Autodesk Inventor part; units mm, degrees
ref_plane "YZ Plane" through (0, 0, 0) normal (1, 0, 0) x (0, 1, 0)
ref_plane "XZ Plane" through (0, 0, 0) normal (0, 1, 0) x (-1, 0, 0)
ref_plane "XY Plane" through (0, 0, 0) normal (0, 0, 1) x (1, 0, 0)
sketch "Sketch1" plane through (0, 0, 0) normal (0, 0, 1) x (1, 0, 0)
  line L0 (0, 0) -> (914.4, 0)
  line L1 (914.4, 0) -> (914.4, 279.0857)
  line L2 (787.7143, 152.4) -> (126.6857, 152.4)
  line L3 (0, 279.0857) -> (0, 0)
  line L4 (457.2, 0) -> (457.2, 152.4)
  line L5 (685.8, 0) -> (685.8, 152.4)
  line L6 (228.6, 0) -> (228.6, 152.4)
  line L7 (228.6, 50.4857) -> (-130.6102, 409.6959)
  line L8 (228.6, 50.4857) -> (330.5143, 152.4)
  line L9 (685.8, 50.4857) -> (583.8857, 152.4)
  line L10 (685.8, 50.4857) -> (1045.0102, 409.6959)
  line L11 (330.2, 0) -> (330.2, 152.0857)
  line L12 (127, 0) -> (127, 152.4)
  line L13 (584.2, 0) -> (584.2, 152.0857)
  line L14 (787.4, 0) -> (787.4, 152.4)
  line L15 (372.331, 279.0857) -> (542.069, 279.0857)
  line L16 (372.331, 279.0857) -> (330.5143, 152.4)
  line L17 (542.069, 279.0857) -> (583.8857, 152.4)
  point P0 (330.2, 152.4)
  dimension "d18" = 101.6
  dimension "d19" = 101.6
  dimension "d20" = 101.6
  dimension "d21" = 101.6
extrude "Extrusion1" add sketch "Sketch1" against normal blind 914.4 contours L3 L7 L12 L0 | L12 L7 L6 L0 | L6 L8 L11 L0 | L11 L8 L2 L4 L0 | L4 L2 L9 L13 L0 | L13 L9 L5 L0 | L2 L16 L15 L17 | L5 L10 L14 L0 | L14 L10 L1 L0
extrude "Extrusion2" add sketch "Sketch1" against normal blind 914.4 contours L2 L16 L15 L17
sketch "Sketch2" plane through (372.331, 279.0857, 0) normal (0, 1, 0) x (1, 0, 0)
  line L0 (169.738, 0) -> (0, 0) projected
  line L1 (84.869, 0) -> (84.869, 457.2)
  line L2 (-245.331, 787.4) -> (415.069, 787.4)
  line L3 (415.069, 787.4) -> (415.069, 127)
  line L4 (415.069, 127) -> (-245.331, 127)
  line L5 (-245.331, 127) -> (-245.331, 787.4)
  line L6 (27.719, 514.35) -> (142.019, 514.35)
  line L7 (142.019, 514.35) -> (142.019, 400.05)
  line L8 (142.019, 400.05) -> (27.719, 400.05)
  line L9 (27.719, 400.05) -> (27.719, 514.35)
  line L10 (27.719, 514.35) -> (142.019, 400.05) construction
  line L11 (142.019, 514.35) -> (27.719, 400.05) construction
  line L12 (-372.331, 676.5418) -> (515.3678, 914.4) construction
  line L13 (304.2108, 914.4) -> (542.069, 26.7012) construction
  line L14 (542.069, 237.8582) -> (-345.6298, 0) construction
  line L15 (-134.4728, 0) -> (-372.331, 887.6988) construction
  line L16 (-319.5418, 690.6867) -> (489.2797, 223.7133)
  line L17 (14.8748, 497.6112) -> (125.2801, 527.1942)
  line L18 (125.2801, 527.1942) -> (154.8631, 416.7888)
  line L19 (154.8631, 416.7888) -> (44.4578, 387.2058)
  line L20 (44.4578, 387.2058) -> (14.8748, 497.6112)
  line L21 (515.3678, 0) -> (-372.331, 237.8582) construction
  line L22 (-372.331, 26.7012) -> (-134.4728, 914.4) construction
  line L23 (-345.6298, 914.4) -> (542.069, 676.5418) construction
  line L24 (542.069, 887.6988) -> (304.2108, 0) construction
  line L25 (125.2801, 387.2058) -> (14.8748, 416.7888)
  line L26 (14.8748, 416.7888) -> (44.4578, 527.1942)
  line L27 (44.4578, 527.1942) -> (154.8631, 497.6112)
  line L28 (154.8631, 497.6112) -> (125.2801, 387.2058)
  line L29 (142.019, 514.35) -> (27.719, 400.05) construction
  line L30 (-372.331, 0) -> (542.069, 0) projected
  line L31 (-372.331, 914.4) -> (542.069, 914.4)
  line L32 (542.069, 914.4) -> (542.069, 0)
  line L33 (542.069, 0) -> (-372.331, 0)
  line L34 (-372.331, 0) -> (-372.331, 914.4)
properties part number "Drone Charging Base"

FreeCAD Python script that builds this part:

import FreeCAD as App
import Part
import Sketcher
from FreeCAD import Vector
Q = App.Units.Quantity

doc = App.newDocument("Part")
body = doc.addObject("PartDesign::Body", "Body")

sketch1 = body.newObject("Sketcher::SketchObject", "Sketch")
sketch1.AttachmentSupport = (doc.getObject("XY_Plane"), [""])
sketch1.MapMode = "FlatFace"
sketch1.addGeometry(Part.LineSegment(Vector(0, 279.0857, 0), Vector(0, 0, 0)), False)
sketch1.addGeometry(Part.LineSegment(Vector(0, 0, 0), Vector(914.4, 0, 0)), False)
sketch1.addGeometry(Part.LineSegment(Vector(914.4, 0, 0), Vector(914.4, 279.0857, 0)), False)
sketch1.addGeometry(Part.LineSegment(Vector(914.4, 279.0857, 0), Vector(685.8, 50.4857, 0)), False)
sketch1.addGeometry(Part.LineSegment(Vector(685.8, 50.4857, 0), Vector(583.8857, 152.4, 0)), False)
sketch1.addGeometry(Part.LineSegment(Vector(583.8857, 152.4, 0), Vector(542.069, 279.0857, 0)), False)
sketch1.addGeometry(Part.LineSegment(Vector(542.069, 279.0857, 0), Vector(372.331, 279.0857, 0)), False)
sketch1.addGeometry(Part.LineSegment(Vector(372.331, 279.0857, 0), Vector(330.5143, 152.4, 0)), False)
sketch1.addGeometry(Part.LineSegment(Vector(330.5143, 152.4, 0), Vector(228.6, 50.4857, 0)), False)
sketch1.addGeometry(Part.LineSegment(Vector(228.6, 50.4857, 0), Vector(0, 279.0857, 0)), False)
sketch1.addConstraint(Sketcher.Constraint("Coincident", 0, 2, 1, 1))
sketch1.addConstraint(Sketcher.Constraint("Coincident", 1, 2, 2, 1))
sketch1.addConstraint(Sketcher.Constraint("Coincident", 2, 2, 3, 1))
sketch1.addConstraint(Sketcher.Constraint("Coincident", 3, 2, 4, 1))
sketch1.addConstraint(Sketcher.Constraint("Coincident", 4, 2, 5, 1))
sketch1.addConstraint(Sketcher.Constraint("Coincident", 5, 2, 6, 1))
sketch1.addConstraint(Sketcher.Constraint("Coincident", 6, 2, 7, 1))
sketch1.addConstraint(Sketcher.Constraint("Coincident", 7, 2, 8, 1))
sketch1.addConstraint(Sketcher.Constraint("Coincident", 8, 2, 9, 1))
sketch1.addConstraint(Sketcher.Constraint("Coincident", 9, 2, 0, 1))
sketch1.addConstraint(Sketcher.Constraint("Vertical", 0))
sketch1.addConstraint(Sketcher.Constraint("Horizontal", 1))
sketch1.addConstraint(Sketcher.Constraint("Vertical", 2))
sketch1.addConstraint(Sketcher.Constraint("Horizontal", 6))
sketch1.addConstraint(Sketcher.Constraint("Coincident", 0, 2, -1, 1))
sketch1.addConstraint(Sketcher.Constraint("Perpendicular", 3, 4))
sketch1.addConstraint(Sketcher.Constraint("Perpendicular", 4, 8))
sketch1.addConstraint(Sketcher.Constraint("Perpendicular", 8, 9))
sketch1.addConstraint(Sketcher.Constraint("Horizontal", 2, 2, 5, 2))
sketch1.addConstraint(Sketcher.Constraint("Horizontal", 4, 2, 7, 2))
sketch1.addConstraint(Sketcher.Constraint("Horizontal", 3, 2, 8, 2))
sketch1.addConstraint(Sketcher.Constraint("Horizontal", 6, 2, 9, 2))
sketch1.addConstraint(Sketcher.Constraint("Equal", 5, 7))
sketch1.addConstraint(Sketcher.Constraint("Equal", 4, 8))
sketch1.addConstraint(Sketcher.Constraint("DistanceX", 1, 1, 1, 2, Q("36 in")))
sketch1.addConstraint(Sketcher.Constraint("DistanceX", -1, 1, 3, 2, Q("27 in")))
sketch1.addConstraint(Sketcher.Constraint("DistanceY", -1, 1, 4, 2, Q("6 in")))
sketch1.addConstraint(Sketcher.Constraint("DistanceX", 6, 2, 6, 1, Q("6.6826 in")))
sketch1.addConstraint(Sketcher.Constraint("DistanceY", 0, 2, 0, 1, 279.0857))
pad1 = body.newObject("PartDesign::Pad", "Pad")
pad1.Profile = sketch1
pad1.Length = Q("36 in")
pad1.Reversed = True

sketch2 = body.newObject("Sketcher::SketchObject", "Sketch001")
sketch2.AttachmentSupport = (doc.getObject("XY_Plane"), [""])
sketch2.MapMode = "FlatFace"
sketch2.addGeometry(Part.LineSegment(Vector(330.5143, 152.4, 0), Vector(583.8857, 152.4, 0)), False)
sketch2.addGeometry(Part.LineSegment(Vector(583.8857, 152.4, 0), Vector(542.069, 279.0857, 0)), False)
sketch2.addGeometry(Part.LineSegment(Vector(542.069, 279.0857, 0), Vector(372.331, 279.0857, 0)), False)
sketch2.addGeometry(Part.LineSegment(Vector(372.331, 279.0857, 0), Vector(330.5143, 152.4, 0)), False)
sketch2.addConstraint(Sketcher.Constraint("Coincident", 0, 2, 1, 1))
sketch2.addConstraint(Sketcher.Constraint("Coincident", 1, 2, 2, 1))
sketch2.addConstraint(Sketcher.Constraint("Coincident", 2, 2, 3, 1))
sketch2.addConstraint(Sketcher.Constraint("Coincident", 3, 2, 0, 1))
sketch2.addConstraint(Sketcher.Constraint("Horizontal", 0))
sketch2.addConstraint(Sketcher.Constraint("Horizontal", 2))
sketch2.addConstraint(Sketcher.Constraint("Equal", 1, 3))
sketch2.addConstraint(Sketcher.Constraint("DistanceY", -1, 1, 0, 2, Q("6 in")))
sketch2.addConstraint(Sketcher.Constraint("DistanceX", 2, 2, 2, 1, Q("6.6826 in")))
sketch2.addConstraint(Sketcher.Constraint("DistanceX", 0, 1, 0, 2, 253.3714))
sketch2.addConstraint(Sketcher.Constraint("DistanceX", -1, 1, 1, 2, Q("21.3413 in")))
sketch2.addConstraint(Sketcher.Constraint("Distance", 1, 133.4088))
pad2 = body.newObject("PartDesign::Pad", "Pad001")
pad2.Profile = sketch2
pad2.Length = Q("36 in")
pad2.Reversed = True

doc.recompute()
